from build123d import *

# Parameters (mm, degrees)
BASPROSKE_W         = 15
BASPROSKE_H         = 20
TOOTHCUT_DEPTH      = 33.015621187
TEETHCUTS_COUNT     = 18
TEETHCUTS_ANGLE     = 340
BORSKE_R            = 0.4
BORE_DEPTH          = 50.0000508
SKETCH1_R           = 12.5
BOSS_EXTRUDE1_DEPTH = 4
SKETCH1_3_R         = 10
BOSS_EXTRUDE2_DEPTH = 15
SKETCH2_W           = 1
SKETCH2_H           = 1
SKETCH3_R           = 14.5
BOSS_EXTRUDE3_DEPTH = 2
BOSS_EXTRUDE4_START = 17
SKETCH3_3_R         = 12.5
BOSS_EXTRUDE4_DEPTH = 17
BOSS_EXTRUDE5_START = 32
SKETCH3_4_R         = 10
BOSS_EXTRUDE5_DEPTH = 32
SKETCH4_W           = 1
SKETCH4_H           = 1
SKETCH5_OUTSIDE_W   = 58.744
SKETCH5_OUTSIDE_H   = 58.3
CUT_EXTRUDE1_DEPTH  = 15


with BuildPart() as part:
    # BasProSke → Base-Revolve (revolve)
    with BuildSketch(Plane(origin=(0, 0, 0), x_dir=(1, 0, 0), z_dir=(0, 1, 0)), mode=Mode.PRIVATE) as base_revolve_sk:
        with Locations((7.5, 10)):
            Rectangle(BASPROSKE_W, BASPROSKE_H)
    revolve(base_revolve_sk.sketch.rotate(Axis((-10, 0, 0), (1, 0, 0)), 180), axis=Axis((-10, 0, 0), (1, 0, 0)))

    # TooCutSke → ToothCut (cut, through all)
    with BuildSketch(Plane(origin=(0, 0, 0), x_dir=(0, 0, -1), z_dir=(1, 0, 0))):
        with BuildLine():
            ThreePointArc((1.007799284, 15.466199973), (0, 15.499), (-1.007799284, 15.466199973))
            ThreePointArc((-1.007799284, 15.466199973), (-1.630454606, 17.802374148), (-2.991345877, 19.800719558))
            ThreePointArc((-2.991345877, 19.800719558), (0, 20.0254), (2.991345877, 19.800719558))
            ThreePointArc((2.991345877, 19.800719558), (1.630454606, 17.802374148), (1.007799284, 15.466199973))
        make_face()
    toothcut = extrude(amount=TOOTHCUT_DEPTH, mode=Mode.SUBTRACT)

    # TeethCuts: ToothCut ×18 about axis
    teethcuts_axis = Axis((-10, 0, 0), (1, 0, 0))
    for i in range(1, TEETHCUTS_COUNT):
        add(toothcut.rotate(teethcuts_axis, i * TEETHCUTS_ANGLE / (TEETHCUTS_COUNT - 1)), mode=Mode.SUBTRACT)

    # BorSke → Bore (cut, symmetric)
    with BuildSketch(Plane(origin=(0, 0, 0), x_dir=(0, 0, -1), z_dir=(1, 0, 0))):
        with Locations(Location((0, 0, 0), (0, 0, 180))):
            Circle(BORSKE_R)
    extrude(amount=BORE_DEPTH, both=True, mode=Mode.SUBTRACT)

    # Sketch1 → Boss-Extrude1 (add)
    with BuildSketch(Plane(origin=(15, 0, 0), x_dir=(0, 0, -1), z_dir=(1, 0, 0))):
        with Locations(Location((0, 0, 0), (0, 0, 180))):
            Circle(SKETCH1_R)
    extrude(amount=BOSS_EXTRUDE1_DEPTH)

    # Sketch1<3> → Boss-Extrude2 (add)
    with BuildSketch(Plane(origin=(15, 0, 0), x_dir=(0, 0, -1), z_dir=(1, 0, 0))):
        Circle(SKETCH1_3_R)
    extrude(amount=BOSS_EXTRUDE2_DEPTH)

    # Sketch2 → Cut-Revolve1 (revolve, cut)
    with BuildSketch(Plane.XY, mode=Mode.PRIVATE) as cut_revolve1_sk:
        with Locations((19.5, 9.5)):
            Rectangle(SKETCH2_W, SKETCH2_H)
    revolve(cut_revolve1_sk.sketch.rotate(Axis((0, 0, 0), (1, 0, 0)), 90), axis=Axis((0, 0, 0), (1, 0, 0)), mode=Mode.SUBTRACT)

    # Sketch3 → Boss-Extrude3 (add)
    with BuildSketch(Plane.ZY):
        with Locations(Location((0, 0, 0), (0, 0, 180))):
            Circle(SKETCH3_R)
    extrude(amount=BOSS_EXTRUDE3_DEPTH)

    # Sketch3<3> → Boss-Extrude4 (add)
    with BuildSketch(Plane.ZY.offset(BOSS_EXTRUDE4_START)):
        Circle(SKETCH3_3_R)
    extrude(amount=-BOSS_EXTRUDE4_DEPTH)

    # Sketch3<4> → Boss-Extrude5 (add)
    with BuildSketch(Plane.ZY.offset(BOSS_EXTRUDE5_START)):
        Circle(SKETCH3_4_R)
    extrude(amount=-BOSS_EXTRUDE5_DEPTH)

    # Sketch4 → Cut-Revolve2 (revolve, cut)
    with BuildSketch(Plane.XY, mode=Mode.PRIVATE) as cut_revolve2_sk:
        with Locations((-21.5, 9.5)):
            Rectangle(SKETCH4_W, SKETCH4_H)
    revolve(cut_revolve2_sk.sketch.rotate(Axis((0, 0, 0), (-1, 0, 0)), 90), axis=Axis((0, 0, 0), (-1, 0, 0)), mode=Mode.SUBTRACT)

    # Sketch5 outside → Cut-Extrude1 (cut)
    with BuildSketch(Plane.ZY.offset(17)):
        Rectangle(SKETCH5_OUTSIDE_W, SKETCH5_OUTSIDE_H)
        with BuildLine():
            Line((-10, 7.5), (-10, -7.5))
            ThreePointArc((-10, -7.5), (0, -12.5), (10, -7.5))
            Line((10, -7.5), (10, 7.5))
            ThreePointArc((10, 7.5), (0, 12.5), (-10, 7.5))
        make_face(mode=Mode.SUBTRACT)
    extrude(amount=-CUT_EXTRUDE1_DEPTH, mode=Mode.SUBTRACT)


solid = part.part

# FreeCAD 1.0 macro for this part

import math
import FreeCAD as App
import Part
import Sketcher

V = App.Vector

doc = App.newDocument("Part")
body = doc.addObject("PartDesign::Body", "Body")

# Sketch on XZ plane
sketch1 = body.newObject("Sketcher::SketchObject", "Sketch")
sketch1.AttachmentSupport = (doc.getObject("XZ_Plane"), [""])
sketch1.MapMode = "FlatFace"
sketch1.addGeometry([
    Part.LineSegment(V(0, -20, 0), V(0, 0, 0)),
    Part.LineSegment(V(0, 0, 0), V(15, 0, 0)),
    Part.LineSegment(V(15, 0, 0), V(15, -20, 0)),
    Part.LineSegment(V(15, -20, 0), V(0, -20, 0)),
], False)
sketch1.addConstraint([
    Sketcher.Constraint("Coincident", 0, 2, 1, 1),
    Sketcher.Constraint("Coincident", 1, 2, 2, 1),
    Sketcher.Constraint("Coincident", 2, 2, 3, 1),
    Sketcher.Constraint("Coincident", 3, 2, 0, 1),
    Sketcher.Constraint("Vertical", 0),
    Sketcher.Constraint("Horizontal", 1),
    Sketcher.Constraint("Vertical", 2),
    Sketcher.Constraint("Horizontal", 3),
    Sketcher.Constraint("Coincident", 0, 2, -1, 1),
    Sketcher.Constraint("DistanceX", 1, 1, 1, 2, 15.0),
    Sketcher.Constraint("DistanceY", 0, 1, 0, 2, 20.0),
])
revolution = body.newObject("PartDesign::Revolution", "Revolution")
revolution.Profile = sketch1
revolution.ReferenceAxis = (sketch1, ["H_Axis"])
revolution.Angle = 360

# Sketch on YZ plane
sketch2 = body.newObject("Sketcher::SketchObject", "Sketch001")
sketch2.AttachmentSupport = (doc.getObject("YZ_Plane"), [""])
sketch2.MapMode = "FlatFace"
sketch2.addGeometry([
    Part.ArcOfCircle(Part.Circle(V(0, 0, 0), V(0, 0, 1), 15.5), math.radians(-3.73), math.radians(3.73)),
    Part.ArcOfCircle(Part.Circle(V(14.8, -8.2, 0), V(0, 0, 1), 7.2), math.radians(46), math.radians(85)),
    Part.ArcOfCircle(Part.Circle(V(0, 0, 0), V(0, 0, 1), 20), math.radians(-8.59), math.radians(8.59)),
    Part.ArcOfCircle(Part.Circle(V(14.8, 8.2, 0), V(0, 0, 1), 7.2), math.radians(-85), math.radians(-46)),
], False)
sketch2.addConstraint([
    Sketcher.Constraint("Coincident", 0, 1, 1, 2),
    Sketcher.Constraint("Coincident", 1, 1, 2, 1),
    Sketcher.Constraint("Coincident", 2, 2, 3, 2),
    Sketcher.Constraint("Coincident", 3, 1, 0, 2),
    Sketcher.Constraint("Coincident", 0, 3, -1, 1),
    Sketcher.Constraint("Coincident", 2, 3, -1, 1),
    Sketcher.Constraint("Equal", 1, 3),
    Sketcher.Constraint("Symmetric", 1, 3, 3, 3, -1),
    Sketcher.Constraint("Radius", 1, 7.2),
    Sketcher.Constraint("Radius", 0, 15.499),
    Sketcher.Constraint("Radius", 2, 20.0254),
    Sketcher.Constraint("DistanceY", 1, 3, -1, 1, 8.177498),
    Sketcher.Constraint("DistanceX", -1, 1, 0, 1, 15.4662),
])
pocket1 = body.newObject("PartDesign::Pocket", "Pocket")
pocket1.Profile = sketch2
pocket1.Type = "ThroughAll"
pocket1.Reversed = True
doc.recompute()

polarpattern = body.newObject("PartDesign::PolarPattern", "PolarPattern")
polarpattern.Originals = [pocket1]
polarpattern.Axis = (doc.getObject("X_Axis"), [""])
polarpattern.Angle = 360
polarpattern.Occurrences = 18
body.Tip = polarpattern

# Sketch on YZ plane
sketch3 = body.newObject("Sketcher::SketchObject", "Sketch002")
sketch3.AttachmentSupport = (doc.getObject("YZ_Plane"), [""])
sketch3.MapMode = "FlatFace"
sketch3.addGeometry(Part.Circle(V(0, 0, 0), V(0, 0, 1), 0.4), False)
sketch3.addConstraint([
    Sketcher.Constraint("Coincident", 0, 3, -1, 1),
    Sketcher.Constraint("Diameter", 0, 0.8),
])
pocket2 = body.newObject("PartDesign::Pocket", "Pocket001")
pocket2.Profile = sketch3
pocket2.Length = 100.000102
pocket2.Midplane = True

# Sketch on YZ plane
sketch4 = body.newObject("Sketcher::SketchObject", "Sketch003")
sketch4.AttachmentSupport = (doc.getObject("YZ_Plane"), [""])
sketch4.MapMode = "FlatFace"
sketch4.AttachmentOffset = App.Placement(V(0, 0, 15), App.Rotation())
sketch4.addGeometry(Part.Circle(V(0, 0, 0), V(0, 0, 1), 12), False)
sketch4.addConstraint([
    Sketcher.Constraint("Coincident", 0, 3, -1, 1),
    Sketcher.Constraint("Diameter", 0, 25.0),
])
pad1 = body.newObject("PartDesign::Pad", "Pad")
pad1.Profile = sketch4
pad1.Length = 4

# Sketch on YZ plane
sketch5 = body.newObject("Sketcher::SketchObject", "Sketch004")
sketch5.AttachmentSupport = (doc.getObject("YZ_Plane"), [""])
sketch5.MapMode = "FlatFace"
sketch5.AttachmentOffset = App.Placement(V(0, 0, 15), App.Rotation())
sketch5.addGeometry(Part.Circle(V(0, 0, 0), V(0, 0, 1), 10), False)
sketch5.addConstraint([
    Sketcher.Constraint("Coincident", 0, 3, -1, 1),
    Sketcher.Constraint("Diameter", 0, 20.0),
])
pad2 = body.newObject("PartDesign::Pad", "Pad001")
pad2.Profile = sketch5
pad2.Length = 15

# Sketch on XY plane
sketch6 = body.newObject("Sketcher::SketchObject", "Sketch005")
sketch6.AttachmentSupport = (doc.getObject("XY_Plane"), [""])
sketch6.MapMode = "FlatFace"
sketch6.addGeometry([
    Part.LineSegment(V(19, 10, 0), V(19, 9, 0)),
    Part.LineSegment(V(19, 9, 0), V(20, 9, 0)),
    Part.LineSegment(V(20, 9, 0), V(20, 10, 0)),
    Part.LineSegment(V(20, 10, 0), V(19, 10, 0)),
], False)
sketch6.addConstraint([
    Sketcher.Constraint("Coincident", 0, 2, 1, 1),
    Sketcher.Constraint("Coincident", 1, 2, 2, 1),
    Sketcher.Constraint("Coincident", 2, 2, 3, 1),
    Sketcher.Constraint("Coincident", 3, 2, 0, 1),
    Sketcher.Constraint("Vertical", 0),
    Sketcher.Constraint("Horizontal", 1),
    Sketcher.Constraint("Vertical", 2),
    Sketcher.Constraint("Horizontal", 3),
    Sketcher.Constraint("Equal", 3, 0),
    Sketcher.Constraint("DistanceX", 1, 1, 1, 2, 1.0),
    Sketcher.Constraint("DistanceX", -1, 1, 0, 2, 19.0),
    Sketcher.Constraint("DistanceY", -1, 1, 0, 2, 9.0),
])
groove = body.newObject("PartDesign::Groove", "Groove")
groove.Profile = sketch6
groove.ReferenceAxis = (sketch6, ["H_Axis"])
groove.Angle = 360

# Sketch on YZ plane
sketch7 = body.newObject("Sketcher::SketchObject", "Sketch006")
sketch7.AttachmentSupport = (doc.getObject("YZ_Plane"), [""])
sketch7.MapMode = "FlatFace"
sketch7.addGeometry(Part.Circle(V(0, 0, 0), V(0, 0, 1), 14), False)
sketch7.addConstraint([
    Sketcher.Constraint("Coincident", 0, 3, -1, 1),
    Sketcher.Constraint("Diameter", 0, 29.0),
])
pad3 = body.newObject("PartDesign::Pad", "Pad002")
pad3.Profile = sketch7
pad3.Length = 2
pad3.Reversed = True

# Sketch on YZ plane
sketch8 = body.newObject("Sketcher::SketchObject", "Sketch007")
sketch8.AttachmentSupport = (doc.getObject("YZ_Plane"), [""])
sketch8.MapMode = "FlatFace"
sketch8.AttachmentOffset = App.Placement(V(0, 0, -17), App.Rotation())
sketch8.addGeometry(Part.Circle(V(0, 0, 0), V(0, 0, 1), 12), False)
sketch8.addConstraint([
    Sketcher.Constraint("Coincident", 0, 3, -1, 1),
    Sketcher.Constraint("Diameter", 0, 25.0),
])
pad4 = body.newObject("PartDesign::Pad", "Pad003")
pad4.Profile = sketch8
pad4.Length = 17

# Sketch on YZ plane
sketch9 = body.newObject("Sketcher::SketchObject", "Sketch008")
sketch9.AttachmentSupport = (doc.getObject("YZ_Plane"), [""])
sketch9.MapMode = "FlatFace"
sketch9.AttachmentOffset = App.Placement(V(0, 0, -32), App.Rotation())
sketch9.addGeometry(Part.Circle(V(0, 0, 0), V(0, 0, 1), 10), False)
sketch9.addConstraint([
    Sketcher.Constraint("Coincident", 0, 3, -1, 1),
    Sketcher.Constraint("Diameter", 0, 20.0),
])
pad5 = body.newObject("PartDesign::Pad", "Pad004")
pad5.Profile = sketch9
pad5.Length = 32

# Sketch on XY plane
sketch10 = body.newObject("Sketcher::SketchObject", "Sketch009")
sketch10.AttachmentSupport = (doc.getObject("XY_Plane"), [""])
sketch10.MapMode = "FlatFace"
sketch10.addGeometry([
    Part.LineSegment(V(-22, 10, 0), V(-22, 9, 0)),
    Part.LineSegment(V(-22, 9, 0), V(-21, 9, 0)),
    Part.LineSegment(V(-21, 9, 0), V(-21, 10, 0)),
    Part.LineSegment(V(-21, 10, 0), V(-22, 10, 0)),
], False)
sketch10.addConstraint([
    Sketcher.Constraint("Coincident", 0, 2, 1, 1),
    Sketcher.Constraint("Coincident", 1, 2, 2, 1),
    Sketcher.Constraint("Coincident", 2, 2, 3, 1),
    Sketcher.Constraint("Coincident", 3, 2, 0, 1),
    Sketcher.Constraint("Vertical", 0),
    Sketcher.Constraint("Horizontal", 1),
    Sketcher.Constraint("Vertical", 2),
    Sketcher.Constraint("Horizontal", 3),
    Sketcher.Constraint("Equal", 3, 0),
    Sketcher.Constraint("DistanceX", 1, 1, 1, 2, 1.0),
    Sketcher.Constraint("DistanceX", 0, 2, -1, 1, 22.0),
    Sketcher.Constraint("DistanceY", -1, 1, 0, 2, 9.0),
])
groove2 = body.newObject("PartDesign::Groove", "Groove001")
groove2.Profile = sketch10
groove2.ReferenceAxis = (sketch10, ["H_Axis"])
groove2.Angle = 360

# Sketch on YZ plane
sketch11 = body.newObject("Sketcher::SketchObject", "Sketch010")
sketch11.AttachmentSupport = (doc.getObject("YZ_Plane"), [""])
sketch11.MapMode = "FlatFace"
sketch11.AttachmentOffset = App.Placement(V(0, 0, -17), App.Rotation())
sketch11.addGeometry([
    Part.LineSegment(V(29, -29, 0), V(-29, -29, 0)),  # 0
    Part.LineSegment(V(-29, -29, 0), V(-29, 29, 0)),  # 1
    Part.LineSegment(V(-29, 29, 0), V(29, 29, 0)),  # 2
    Part.LineSegment(V(29, 29, 0), V(29, -29, 0)),  # 3
    Part.LineSegment(V(-8, -10, 0), V(8, -10, 0)),  # 4
    Part.ArcOfCircle(Part.Circle(V(0, 0, 0), V(0, 0, 1), 12), math.radians(-53), math.radians(53)),  # 5
    Part.LineSegment(V(8, 10, 0), V(-8, 10, 0)),  # 6
    Part.ArcOfCircle(Part.Circle(V(0, 0, 0), V(0, 0, 1), 12), math.radians(127), math.radians(233)),  # 7
], False)
sketch11.addConstraint([
    Sketcher.Constraint("Coincident", 0, 2, 1, 1),
    Sketcher.Constraint("Coincident", 1, 2, 2, 1),
    Sketcher.Constraint("Coincident", 2, 2, 3, 1),
    Sketcher.Constraint("Coincident", 3, 2, 0, 1),
    Sketcher.Constraint("Coincident", 4, 2, 5, 1),
    Sketcher.Constraint("Coincident", 5, 2, 6, 1),
    Sketcher.Constraint("Coincident", 6, 2, 7, 1),
    Sketcher.Constraint("Coincident", 7, 2, 4, 1),
    Sketcher.Constraint("Horizontal", 0),
    Sketcher.Constraint("Vertical", 1),
    Sketcher.Constraint("Horizontal", 2),
    Sketcher.Constraint("Vertical", 3),
    Sketcher.Constraint("Horizontal", 4),
    Sketcher.Constraint("Horizontal", 6),
    Sketcher.Constraint("Coincident", 5, 3, -1, 1),
    Sketcher.Constraint("Coincident", 7, 3, -1, 1),
    Sketcher.Constraint("Equal", 5, 7),
    Sketcher.Constraint("Symmetric", 0, 2, 2, 2, -1, 1),
    Sketcher.Constraint("Vertical", 4, 2, 5, 2),
    Sketcher.Constraint("Radius", 5, 12.5),
    Sketcher.Constraint("DistanceX", 4, 1, 4, 2, 15.0),
    Sketcher.Constraint("DistanceX", 0, 2, 0, 1, 58.3),
    Sketcher.Constraint("DistanceY", 1, 1, 1, 2, 58.744),
])
pocket3 = body.newObject("PartDesign::Pocket", "Pocket002")
pocket3.Profile = sketch11
pocket3.Length = 15
pocket3.Reversed = True

doc.recompute()
